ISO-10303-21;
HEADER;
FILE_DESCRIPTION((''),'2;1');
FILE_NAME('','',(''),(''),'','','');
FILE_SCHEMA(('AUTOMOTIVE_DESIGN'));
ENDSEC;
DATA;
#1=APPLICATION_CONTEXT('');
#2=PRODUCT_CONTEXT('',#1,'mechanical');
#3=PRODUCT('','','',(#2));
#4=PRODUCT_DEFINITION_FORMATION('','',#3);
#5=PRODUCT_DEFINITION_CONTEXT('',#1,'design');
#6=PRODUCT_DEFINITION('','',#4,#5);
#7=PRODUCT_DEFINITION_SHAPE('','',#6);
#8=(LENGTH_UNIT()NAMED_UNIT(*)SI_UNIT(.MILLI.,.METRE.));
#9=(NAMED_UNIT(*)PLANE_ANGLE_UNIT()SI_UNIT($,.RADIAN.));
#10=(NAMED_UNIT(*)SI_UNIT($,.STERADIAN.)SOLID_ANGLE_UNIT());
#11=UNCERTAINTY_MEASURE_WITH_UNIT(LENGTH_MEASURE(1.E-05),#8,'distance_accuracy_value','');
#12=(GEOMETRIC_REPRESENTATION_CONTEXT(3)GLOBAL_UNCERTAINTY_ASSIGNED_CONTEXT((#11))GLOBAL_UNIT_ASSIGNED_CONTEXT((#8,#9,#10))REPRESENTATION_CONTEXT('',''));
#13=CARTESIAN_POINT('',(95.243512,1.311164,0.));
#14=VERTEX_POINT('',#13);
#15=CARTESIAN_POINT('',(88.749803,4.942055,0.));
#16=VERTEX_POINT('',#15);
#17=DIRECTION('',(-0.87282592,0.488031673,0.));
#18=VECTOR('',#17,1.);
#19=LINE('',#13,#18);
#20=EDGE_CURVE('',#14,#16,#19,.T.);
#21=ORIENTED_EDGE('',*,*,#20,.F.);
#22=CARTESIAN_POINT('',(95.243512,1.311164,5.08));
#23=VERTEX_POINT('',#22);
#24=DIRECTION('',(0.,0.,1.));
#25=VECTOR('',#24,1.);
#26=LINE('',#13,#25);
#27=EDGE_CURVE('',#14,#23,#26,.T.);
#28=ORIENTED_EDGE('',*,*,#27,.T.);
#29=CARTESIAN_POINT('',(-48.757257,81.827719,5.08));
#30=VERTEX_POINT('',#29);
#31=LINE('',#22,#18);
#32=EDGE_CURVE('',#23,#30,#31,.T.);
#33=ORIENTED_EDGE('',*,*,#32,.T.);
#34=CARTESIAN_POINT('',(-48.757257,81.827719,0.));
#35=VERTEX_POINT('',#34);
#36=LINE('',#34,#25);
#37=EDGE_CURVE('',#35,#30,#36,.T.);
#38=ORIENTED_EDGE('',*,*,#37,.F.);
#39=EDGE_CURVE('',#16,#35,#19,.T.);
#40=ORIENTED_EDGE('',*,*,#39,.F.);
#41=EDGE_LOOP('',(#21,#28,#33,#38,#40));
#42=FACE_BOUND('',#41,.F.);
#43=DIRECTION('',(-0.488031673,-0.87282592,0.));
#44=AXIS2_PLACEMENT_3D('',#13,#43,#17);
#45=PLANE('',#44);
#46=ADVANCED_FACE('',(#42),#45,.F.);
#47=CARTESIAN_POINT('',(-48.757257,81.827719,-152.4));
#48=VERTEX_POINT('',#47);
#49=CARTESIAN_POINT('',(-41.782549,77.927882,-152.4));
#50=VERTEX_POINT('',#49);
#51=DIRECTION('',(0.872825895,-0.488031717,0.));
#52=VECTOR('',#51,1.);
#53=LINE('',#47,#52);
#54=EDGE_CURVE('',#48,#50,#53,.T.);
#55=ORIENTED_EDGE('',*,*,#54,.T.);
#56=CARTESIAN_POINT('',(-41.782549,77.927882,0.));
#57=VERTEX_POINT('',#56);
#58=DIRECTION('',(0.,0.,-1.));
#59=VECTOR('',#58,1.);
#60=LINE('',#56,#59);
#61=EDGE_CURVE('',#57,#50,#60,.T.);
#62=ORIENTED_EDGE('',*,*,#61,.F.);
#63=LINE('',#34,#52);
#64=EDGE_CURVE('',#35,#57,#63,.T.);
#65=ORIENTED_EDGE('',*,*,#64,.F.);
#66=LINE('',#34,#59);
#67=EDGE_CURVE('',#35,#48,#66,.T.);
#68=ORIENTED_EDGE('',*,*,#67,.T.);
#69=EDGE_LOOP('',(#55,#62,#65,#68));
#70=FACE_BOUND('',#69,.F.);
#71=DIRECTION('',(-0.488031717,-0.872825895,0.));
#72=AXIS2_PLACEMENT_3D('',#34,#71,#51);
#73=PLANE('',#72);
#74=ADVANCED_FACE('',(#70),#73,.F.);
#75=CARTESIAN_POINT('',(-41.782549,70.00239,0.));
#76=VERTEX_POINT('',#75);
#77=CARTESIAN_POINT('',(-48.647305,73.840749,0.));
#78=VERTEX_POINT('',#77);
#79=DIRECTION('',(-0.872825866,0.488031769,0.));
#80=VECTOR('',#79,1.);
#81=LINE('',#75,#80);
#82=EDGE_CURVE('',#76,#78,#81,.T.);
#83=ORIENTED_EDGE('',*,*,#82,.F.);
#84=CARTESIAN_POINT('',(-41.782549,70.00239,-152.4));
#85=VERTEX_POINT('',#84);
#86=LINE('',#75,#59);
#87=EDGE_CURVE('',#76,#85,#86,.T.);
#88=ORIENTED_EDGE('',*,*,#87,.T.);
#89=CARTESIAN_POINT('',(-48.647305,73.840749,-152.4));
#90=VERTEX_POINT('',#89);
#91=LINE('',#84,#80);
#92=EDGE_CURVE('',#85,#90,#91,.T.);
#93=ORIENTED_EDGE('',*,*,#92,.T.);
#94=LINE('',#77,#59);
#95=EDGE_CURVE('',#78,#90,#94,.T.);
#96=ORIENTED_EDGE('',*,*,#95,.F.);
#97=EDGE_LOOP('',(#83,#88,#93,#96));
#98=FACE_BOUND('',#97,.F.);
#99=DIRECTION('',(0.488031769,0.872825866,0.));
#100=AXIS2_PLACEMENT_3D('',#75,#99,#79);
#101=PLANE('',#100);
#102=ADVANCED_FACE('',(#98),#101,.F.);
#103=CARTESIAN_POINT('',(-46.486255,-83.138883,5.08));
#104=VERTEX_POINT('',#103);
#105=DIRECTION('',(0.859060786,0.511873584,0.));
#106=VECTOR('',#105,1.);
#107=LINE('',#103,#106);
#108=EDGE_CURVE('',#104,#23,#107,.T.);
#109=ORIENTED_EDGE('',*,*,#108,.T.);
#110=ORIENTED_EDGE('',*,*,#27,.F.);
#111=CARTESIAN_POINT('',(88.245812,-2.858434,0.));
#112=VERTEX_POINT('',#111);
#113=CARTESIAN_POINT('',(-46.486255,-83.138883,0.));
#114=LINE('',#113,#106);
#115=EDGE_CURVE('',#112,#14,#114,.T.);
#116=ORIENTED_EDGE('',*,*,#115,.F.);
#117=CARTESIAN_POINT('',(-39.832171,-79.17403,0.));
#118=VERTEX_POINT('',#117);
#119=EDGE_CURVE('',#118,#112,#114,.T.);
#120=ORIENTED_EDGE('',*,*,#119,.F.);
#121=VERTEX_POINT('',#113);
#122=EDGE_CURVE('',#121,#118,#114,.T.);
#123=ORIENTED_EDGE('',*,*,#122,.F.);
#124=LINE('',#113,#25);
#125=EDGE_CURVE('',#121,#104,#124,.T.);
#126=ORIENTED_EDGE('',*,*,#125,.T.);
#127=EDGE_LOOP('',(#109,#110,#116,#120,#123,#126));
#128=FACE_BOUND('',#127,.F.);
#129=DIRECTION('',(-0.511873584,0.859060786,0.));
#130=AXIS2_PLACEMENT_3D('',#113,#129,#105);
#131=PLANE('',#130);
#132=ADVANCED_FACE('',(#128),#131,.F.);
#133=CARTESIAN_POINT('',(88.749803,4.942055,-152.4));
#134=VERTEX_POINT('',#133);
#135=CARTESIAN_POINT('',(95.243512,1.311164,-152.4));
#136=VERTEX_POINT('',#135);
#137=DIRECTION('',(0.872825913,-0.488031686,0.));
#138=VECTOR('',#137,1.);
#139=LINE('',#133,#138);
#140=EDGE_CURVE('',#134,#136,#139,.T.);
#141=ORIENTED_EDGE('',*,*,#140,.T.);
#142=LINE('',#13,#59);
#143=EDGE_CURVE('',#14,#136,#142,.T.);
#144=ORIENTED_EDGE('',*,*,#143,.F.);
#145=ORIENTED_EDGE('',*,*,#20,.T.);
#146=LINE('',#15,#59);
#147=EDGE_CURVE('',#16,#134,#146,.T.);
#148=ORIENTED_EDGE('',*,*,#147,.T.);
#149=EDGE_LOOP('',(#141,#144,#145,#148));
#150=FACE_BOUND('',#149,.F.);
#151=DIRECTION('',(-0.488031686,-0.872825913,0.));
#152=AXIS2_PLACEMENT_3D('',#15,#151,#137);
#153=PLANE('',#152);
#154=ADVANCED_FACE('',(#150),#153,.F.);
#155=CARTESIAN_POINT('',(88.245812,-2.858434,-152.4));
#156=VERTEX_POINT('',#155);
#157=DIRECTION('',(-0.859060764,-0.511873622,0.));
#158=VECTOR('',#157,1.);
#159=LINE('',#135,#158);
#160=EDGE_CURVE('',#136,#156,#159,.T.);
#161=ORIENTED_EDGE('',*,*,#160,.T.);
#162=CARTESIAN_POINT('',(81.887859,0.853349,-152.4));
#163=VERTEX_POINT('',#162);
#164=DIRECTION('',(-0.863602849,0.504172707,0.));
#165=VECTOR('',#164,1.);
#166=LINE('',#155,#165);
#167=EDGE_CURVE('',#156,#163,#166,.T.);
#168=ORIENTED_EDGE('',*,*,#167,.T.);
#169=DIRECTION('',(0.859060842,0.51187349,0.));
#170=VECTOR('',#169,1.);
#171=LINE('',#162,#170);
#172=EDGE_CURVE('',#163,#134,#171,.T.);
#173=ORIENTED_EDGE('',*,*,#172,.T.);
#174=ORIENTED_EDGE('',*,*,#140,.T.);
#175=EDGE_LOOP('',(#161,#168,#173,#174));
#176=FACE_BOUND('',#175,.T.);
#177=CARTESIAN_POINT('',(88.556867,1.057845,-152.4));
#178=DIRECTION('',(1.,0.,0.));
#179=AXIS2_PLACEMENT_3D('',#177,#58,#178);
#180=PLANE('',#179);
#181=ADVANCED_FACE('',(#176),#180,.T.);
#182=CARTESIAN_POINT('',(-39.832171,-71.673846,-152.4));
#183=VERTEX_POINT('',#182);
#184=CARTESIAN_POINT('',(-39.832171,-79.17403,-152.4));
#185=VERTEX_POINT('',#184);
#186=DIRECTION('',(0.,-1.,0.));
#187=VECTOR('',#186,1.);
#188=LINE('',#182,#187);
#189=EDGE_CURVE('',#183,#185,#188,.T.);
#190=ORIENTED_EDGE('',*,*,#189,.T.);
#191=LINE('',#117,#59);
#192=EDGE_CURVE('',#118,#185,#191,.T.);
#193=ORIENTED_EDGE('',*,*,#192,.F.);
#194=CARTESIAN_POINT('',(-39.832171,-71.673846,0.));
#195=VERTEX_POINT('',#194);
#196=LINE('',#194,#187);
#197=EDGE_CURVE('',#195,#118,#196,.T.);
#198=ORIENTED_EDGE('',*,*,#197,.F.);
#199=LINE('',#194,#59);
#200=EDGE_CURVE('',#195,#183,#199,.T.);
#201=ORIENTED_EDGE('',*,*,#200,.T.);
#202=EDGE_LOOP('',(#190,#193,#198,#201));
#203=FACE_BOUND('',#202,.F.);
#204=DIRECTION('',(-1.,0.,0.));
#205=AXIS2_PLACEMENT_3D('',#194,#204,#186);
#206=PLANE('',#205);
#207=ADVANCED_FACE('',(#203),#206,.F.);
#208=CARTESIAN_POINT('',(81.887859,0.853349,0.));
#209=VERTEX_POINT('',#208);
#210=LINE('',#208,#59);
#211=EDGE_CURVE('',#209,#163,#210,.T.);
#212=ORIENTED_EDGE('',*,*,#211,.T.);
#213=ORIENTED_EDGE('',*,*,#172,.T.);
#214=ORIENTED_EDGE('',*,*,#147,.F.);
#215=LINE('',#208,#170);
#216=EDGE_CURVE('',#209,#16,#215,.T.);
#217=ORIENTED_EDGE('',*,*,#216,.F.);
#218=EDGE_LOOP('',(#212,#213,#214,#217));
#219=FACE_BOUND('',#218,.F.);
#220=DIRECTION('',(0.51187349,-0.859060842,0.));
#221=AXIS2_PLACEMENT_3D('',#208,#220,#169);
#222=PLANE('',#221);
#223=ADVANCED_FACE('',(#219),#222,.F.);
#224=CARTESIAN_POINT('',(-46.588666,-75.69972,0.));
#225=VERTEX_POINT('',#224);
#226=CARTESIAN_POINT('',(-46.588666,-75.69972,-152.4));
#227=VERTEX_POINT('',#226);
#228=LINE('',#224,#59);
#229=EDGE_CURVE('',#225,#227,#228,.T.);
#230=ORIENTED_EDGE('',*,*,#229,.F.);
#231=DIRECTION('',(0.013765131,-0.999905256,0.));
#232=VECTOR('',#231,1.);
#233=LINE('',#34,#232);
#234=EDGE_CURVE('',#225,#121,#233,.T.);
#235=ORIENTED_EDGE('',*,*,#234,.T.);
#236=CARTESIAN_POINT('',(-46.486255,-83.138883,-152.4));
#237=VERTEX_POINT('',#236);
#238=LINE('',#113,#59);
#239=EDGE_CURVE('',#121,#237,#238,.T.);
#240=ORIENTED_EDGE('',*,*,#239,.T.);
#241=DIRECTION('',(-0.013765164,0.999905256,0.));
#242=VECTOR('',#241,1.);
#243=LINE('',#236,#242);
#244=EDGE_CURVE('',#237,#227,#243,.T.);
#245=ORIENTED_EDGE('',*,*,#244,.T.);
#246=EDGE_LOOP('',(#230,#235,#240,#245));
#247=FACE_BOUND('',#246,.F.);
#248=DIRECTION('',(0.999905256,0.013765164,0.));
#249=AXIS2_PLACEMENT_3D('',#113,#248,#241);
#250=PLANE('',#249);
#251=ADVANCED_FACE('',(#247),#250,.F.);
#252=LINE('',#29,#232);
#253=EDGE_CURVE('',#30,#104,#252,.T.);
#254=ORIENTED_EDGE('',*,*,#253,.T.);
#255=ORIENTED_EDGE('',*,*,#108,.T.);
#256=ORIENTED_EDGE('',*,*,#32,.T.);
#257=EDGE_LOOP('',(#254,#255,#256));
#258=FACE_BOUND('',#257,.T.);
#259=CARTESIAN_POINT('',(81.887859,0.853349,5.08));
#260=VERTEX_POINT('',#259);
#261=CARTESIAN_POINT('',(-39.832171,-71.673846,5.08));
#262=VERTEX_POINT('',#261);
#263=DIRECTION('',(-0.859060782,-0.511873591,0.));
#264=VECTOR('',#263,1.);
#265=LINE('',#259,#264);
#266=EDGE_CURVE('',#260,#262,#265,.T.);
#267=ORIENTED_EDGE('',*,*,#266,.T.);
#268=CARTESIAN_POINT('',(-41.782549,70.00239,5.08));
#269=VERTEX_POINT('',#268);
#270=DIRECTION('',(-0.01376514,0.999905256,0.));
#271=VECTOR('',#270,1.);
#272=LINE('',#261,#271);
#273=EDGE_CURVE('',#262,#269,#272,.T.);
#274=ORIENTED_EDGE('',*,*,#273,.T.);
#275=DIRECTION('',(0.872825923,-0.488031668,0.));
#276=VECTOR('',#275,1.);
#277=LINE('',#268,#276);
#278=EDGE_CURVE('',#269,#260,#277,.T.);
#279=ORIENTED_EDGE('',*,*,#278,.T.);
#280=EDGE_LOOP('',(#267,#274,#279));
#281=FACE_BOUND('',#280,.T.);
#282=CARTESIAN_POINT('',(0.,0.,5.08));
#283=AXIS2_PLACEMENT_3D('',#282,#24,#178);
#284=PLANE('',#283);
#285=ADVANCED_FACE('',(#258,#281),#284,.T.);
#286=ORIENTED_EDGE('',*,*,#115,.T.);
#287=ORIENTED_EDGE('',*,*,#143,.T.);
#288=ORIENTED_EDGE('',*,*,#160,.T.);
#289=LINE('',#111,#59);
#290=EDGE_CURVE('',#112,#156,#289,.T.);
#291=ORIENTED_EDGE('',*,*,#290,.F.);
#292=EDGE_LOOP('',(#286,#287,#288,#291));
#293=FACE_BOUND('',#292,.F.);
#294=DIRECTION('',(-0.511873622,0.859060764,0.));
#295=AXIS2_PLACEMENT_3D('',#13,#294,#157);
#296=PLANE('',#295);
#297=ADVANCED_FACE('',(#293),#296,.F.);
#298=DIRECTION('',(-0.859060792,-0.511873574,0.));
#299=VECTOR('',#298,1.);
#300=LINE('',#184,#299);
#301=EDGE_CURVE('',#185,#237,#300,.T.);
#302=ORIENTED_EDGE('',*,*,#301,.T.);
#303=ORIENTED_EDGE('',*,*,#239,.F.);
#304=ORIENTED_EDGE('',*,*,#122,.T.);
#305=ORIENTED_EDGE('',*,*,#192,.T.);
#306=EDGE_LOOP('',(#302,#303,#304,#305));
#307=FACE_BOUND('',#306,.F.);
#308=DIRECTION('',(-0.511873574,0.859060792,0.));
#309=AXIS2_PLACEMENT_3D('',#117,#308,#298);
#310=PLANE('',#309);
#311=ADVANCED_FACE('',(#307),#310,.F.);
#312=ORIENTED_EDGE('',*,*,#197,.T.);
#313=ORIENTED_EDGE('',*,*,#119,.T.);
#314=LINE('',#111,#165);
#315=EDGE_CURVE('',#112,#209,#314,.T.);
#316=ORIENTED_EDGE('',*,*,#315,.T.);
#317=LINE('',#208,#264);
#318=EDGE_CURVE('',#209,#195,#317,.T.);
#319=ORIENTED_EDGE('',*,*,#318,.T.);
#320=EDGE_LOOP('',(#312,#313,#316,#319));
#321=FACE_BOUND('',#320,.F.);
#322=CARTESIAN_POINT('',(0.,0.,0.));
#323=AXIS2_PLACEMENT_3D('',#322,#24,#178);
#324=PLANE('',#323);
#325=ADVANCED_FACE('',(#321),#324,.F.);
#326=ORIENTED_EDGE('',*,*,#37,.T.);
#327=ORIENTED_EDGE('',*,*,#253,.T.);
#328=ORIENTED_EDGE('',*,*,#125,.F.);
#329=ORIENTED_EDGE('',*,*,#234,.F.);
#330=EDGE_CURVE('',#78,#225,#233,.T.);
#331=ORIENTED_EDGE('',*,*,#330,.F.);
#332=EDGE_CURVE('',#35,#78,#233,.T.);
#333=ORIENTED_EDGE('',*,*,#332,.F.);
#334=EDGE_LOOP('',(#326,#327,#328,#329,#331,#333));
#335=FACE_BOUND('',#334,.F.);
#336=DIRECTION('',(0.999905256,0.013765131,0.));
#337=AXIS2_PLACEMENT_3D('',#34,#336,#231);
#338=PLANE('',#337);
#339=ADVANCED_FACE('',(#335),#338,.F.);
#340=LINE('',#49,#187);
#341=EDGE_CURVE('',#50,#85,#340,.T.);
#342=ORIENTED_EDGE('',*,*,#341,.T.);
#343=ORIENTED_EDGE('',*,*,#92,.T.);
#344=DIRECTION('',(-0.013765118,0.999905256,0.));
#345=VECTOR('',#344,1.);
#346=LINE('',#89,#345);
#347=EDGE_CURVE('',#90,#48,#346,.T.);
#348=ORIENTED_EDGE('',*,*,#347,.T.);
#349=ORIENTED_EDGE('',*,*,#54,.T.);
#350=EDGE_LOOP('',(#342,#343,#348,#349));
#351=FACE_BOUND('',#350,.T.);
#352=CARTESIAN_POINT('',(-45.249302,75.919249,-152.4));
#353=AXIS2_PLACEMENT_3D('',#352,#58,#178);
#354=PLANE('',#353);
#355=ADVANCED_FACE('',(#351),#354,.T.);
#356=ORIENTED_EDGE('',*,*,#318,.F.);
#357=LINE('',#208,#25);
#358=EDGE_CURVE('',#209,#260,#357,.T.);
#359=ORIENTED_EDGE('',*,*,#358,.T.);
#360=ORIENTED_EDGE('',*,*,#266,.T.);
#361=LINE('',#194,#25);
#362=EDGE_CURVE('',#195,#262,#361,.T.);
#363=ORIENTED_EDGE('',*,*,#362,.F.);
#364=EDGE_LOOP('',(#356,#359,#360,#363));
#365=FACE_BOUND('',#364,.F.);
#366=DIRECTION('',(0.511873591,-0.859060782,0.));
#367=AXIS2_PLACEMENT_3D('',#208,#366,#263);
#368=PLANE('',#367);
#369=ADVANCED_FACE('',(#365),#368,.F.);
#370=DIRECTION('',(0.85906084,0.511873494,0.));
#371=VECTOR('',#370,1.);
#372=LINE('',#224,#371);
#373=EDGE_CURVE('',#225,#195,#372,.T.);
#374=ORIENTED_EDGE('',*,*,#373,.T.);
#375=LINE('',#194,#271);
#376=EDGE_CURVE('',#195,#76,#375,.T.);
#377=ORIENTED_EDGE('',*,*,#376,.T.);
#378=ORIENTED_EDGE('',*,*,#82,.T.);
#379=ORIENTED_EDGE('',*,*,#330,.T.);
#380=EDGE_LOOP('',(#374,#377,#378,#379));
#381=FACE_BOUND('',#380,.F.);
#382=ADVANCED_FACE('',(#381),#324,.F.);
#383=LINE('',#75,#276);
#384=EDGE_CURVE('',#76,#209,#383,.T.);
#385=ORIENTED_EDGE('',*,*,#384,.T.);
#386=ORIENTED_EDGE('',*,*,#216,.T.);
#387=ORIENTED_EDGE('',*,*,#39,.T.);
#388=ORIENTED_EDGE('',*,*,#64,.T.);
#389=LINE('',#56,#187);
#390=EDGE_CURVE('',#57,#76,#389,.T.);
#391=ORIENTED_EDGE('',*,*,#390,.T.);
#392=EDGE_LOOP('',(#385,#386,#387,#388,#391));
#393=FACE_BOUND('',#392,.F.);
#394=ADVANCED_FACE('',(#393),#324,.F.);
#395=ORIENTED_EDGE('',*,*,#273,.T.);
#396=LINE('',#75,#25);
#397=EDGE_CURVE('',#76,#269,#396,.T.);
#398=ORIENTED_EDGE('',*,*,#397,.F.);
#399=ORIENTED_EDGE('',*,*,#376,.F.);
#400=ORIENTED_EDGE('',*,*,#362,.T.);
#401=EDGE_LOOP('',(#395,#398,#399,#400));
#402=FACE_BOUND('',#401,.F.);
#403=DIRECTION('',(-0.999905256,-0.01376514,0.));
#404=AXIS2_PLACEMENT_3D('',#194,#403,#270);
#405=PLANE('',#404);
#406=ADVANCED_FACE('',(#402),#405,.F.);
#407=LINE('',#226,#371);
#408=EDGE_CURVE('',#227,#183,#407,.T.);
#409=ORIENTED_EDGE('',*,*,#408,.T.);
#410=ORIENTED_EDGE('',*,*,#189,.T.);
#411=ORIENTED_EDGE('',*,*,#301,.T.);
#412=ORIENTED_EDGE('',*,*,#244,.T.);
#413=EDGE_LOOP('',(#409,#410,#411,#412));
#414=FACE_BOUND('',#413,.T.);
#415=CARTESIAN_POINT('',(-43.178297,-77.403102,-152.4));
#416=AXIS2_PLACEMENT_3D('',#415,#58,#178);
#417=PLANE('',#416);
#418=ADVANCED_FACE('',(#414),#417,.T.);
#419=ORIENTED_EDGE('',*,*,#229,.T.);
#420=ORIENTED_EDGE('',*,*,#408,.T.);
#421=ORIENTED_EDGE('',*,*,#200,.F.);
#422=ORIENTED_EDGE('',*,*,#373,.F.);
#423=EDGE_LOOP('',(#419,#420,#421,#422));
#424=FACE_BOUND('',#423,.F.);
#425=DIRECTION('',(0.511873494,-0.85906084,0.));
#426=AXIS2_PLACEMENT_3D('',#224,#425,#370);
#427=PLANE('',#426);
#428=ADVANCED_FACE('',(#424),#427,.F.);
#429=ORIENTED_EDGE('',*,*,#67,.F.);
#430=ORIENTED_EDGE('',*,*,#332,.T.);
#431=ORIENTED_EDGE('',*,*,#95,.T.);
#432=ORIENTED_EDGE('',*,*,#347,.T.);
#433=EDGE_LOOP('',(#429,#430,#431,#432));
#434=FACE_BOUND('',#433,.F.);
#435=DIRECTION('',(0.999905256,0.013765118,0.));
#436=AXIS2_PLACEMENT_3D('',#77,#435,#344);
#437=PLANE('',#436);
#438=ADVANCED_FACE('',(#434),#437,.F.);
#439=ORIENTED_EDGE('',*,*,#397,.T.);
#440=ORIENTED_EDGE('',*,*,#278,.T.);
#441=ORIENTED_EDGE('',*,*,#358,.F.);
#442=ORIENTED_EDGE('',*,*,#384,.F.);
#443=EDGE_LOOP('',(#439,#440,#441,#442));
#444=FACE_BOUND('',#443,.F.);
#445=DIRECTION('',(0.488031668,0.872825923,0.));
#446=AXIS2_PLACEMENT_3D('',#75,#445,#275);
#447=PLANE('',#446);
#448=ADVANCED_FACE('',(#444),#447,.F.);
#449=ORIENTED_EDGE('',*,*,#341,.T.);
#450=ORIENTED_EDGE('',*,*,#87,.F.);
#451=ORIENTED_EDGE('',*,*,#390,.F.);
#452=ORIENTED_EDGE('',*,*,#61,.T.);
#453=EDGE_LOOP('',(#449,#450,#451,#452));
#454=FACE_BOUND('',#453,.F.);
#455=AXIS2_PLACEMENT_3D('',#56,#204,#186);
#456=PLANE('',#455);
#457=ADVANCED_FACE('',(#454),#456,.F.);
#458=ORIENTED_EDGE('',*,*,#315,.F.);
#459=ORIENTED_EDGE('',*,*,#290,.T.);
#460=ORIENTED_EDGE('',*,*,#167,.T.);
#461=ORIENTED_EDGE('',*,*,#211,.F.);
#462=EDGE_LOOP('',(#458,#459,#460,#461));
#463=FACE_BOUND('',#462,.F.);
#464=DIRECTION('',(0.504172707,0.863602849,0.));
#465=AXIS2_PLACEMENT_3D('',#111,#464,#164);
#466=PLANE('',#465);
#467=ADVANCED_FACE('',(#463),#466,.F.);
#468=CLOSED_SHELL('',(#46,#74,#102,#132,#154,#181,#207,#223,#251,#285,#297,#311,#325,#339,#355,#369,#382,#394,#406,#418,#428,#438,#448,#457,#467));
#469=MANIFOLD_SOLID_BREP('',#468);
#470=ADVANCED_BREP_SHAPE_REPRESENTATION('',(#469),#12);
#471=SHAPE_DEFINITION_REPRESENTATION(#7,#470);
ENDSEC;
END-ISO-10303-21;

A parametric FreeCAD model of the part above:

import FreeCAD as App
import Part
import Sketcher

V = App.Vector
Q = App.Units.Quantity

doc = App.newDocument("Part")
body = doc.addObject("PartDesign::Body", "Body")

# Sketch on XY plane
sketch1 = body.newObject("Sketcher::SketchObject", "Sketch")
sketch1.AttachmentSupport = (doc.getObject("XY_Plane"), [""])
sketch1.MapMode = "FlatFace"
sketch1.addGeometry([
    Part.LineSegment(V(95, 1, 0), V(-49, 82, 0)),  # 0
    Part.LineSegment(V(-49, 82, 0), V(-46, -83, 0)),  # 1
    Part.LineSegment(V(-46, -83, 0), V(95, 1, 0)),  # 2
    Part.LineSegment(V(-40, -72, 0), V(-42, 70, 0)),  # 3
    Part.LineSegment(V(-42, 70, 0), V(82, 1, 0)),  # 4
    Part.LineSegment(V(82, 1, 0), V(-40, -72, 0)),  # 5
], False)
sketch1.addConstraint([
    Sketcher.Constraint("Coincident", 0, 2, 1, 1),
    Sketcher.Constraint("Coincident", 1, 2, 2, 1),
    Sketcher.Constraint("Coincident", 2, 2, 0, 1),
    Sketcher.Constraint("Coincident", 3, 2, 4, 1),
    Sketcher.Constraint("Coincident", 4, 2, 5, 1),
    Sketcher.Constraint("Coincident", 5, 2, 3, 1),
    Sketcher.Constraint("Parallel", 1, 3),
    Sketcher.Constraint("Parallel", 0, 4),
    Sketcher.Constraint("Parallel", 2, 5),
    Sketcher.Constraint("Equal", 0, 1),
    Sketcher.Constraint("Equal", 1, 2),
    Sketcher.Constraint("Distance", 3, Q("141.68966 mm")),
    Sketcher.Constraint("DistanceY", -1, 1, 0, 2, Q("81.827719 mm")),
    Sketcher.Constraint("DistanceX", -1, 1, 2, 2, Q("95.243512 mm")),
    Sketcher.Constraint("DistanceX", 3, 2, -1, 1, Q("41.782549 mm")),
    Sketcher.Constraint("DistanceY", -1, 1, 3, 2, Q("70.00239 mm")),
    Sketcher.Constraint("DistanceX", -1, 1, 4, 2, Q("81.887859 mm")),
    Sketcher.Constraint("DistanceX", 0, 2, 2, 2, Q("144.000769 mm")),
])
pad1 = body.newObject("PartDesign::Pad", "Pad")
pad1.Profile = sketch1
pad1.Length = Q("0.2 in")

# Sketch on XY plane
sketch2 = body.newObject("Sketcher::SketchObject", "Sketch001")
sketch2.AttachmentSupport = (doc.getObject("XY_Plane"), [""])
sketch2.MapMode = "FlatFace"
sketch2.addGeometry([
    Part.LineSegment(V(-42, 78, 0), V(-42, 70, 0)),  # 0
    Part.LineSegment(V(-42, 70, 0), V(-49, 74, 0)),  # 1
    Part.LineSegment(V(-49, 74, 0), V(-49, 82, 0)),  # 2
    Part.LineSegment(V(-49, 82, 0), V(-42, 78, 0)),  # 3
    Part.LineSegment(V(88, -3, 0), V(82, 1, 0)),  # 4
    Part.LineSegment(V(82, 1, 0), V(89, 5, 0)),  # 5
    Part.LineSegment(V(89, 5, 0), V(95, 1, 0)),  # 6
    Part.LineSegment(V(95, 1, 0), V(88, -3, 0)),  # 7
    Part.LineSegment(V(-47, -76, 0), V(-40, -72, 0)),  # 8
    Part.LineSegment(V(-40, -72, 0), V(-40, -79, 0)),  # 9
    Part.LineSegment(V(-40, -79, 0), V(-46, -83, 0)),  # 10
    Part.LineSegment(V(-46, -83, 0), V(-47, -76, 0)),  # 11
], False)
sketch2.addConstraint([
    Sketcher.Constraint("Coincident", 0, 2, 1, 1),
    Sketcher.Constraint("Coincident", 1, 2, 2, 1),
    Sketcher.Constraint("Coincident", 2, 2, 3, 1),
    Sketcher.Constraint("Coincident", 3, 2, 0, 1),
    Sketcher.Constraint("Coincident", 4, 2, 5, 1),
    Sketcher.Constraint("Coincident", 5, 2, 6, 1),
    Sketcher.Constraint("Coincident", 6, 2, 7, 1),
    Sketcher.Constraint("Coincident", 7, 2, 4, 1),
    Sketcher.Constraint("Coincident", 8, 2, 9, 1),
    Sketcher.Constraint("Coincident", 9, 2, 10, 1),
    Sketcher.Constraint("Coincident", 10, 2, 11, 1),
    Sketcher.Constraint("Coincident", 11, 2, 8, 1),
    Sketcher.Constraint("Vertical", 0),
    Sketcher.Constraint("Vertical", 9),
    Sketcher.Constraint("Parallel", 1, 3),
    Sketcher.Constraint("Parallel", 3, 6),
    Sketcher.Constraint("Parallel", 5, 7),
    Sketcher.Constraint("Parallel", 7, 8),
    Sketcher.Constraint("Parallel", 8, 10),
    Sketcher.Constraint("Parallel", 2, 11),
    Sketcher.Constraint("Equal", 2, 5),
    Sketcher.Constraint("Equal", 1, 8),
    Sketcher.Constraint("Equal", 6, 11),
    Sketcher.Constraint("DistanceX", 7, 2, 6, 2, Q("0.2755 in")),
    Sketcher.Constraint("DistanceY", 0, 2, 0, 1, Q("7.925492 mm")),
    Sketcher.Constraint("DistanceY", 4, 2, 1, 2, Q("72.9874 mm")),
    Sketcher.Constraint("Distance", 3, Q("7.99095 mm")),
    Sketcher.Constraint("Distance", 8, Q("7.864978 mm")),
    Sketcher.Constraint("DistanceY", 9, 2, 9, 1, Q("7.500184 mm")),
    Sketcher.Constraint("DistanceX", 0, 2, -1, 1, Q("41.782549 mm")),
    Sketcher.Constraint("DistanceY", -1, 1, 0, 2, Q("70.00239 mm")),
    Sketcher.Constraint("DistanceY", -1, 1, 1, 2, Q("73.840749 mm")),
    Sketcher.Constraint("DistanceX", -1, 1, 4, 2, Q("81.887859 mm")),
    Sketcher.Constraint("DistanceX", -1, 1, 6, 2, Q("95.243512 mm")),
    Sketcher.Constraint("DistanceX", 8, 2, -1, 1, Q("39.832171 mm")),
    Sketcher.Constraint("DistanceY", 9, 2, -1, 1, Q("79.17403 mm")),
])
pad2 = body.newObject("PartDesign::Pad", "Pad001")
pad2.Profile = sketch2
pad2.Length = Q("6 in")
pad2.Reversed = True

doc.recompute()
